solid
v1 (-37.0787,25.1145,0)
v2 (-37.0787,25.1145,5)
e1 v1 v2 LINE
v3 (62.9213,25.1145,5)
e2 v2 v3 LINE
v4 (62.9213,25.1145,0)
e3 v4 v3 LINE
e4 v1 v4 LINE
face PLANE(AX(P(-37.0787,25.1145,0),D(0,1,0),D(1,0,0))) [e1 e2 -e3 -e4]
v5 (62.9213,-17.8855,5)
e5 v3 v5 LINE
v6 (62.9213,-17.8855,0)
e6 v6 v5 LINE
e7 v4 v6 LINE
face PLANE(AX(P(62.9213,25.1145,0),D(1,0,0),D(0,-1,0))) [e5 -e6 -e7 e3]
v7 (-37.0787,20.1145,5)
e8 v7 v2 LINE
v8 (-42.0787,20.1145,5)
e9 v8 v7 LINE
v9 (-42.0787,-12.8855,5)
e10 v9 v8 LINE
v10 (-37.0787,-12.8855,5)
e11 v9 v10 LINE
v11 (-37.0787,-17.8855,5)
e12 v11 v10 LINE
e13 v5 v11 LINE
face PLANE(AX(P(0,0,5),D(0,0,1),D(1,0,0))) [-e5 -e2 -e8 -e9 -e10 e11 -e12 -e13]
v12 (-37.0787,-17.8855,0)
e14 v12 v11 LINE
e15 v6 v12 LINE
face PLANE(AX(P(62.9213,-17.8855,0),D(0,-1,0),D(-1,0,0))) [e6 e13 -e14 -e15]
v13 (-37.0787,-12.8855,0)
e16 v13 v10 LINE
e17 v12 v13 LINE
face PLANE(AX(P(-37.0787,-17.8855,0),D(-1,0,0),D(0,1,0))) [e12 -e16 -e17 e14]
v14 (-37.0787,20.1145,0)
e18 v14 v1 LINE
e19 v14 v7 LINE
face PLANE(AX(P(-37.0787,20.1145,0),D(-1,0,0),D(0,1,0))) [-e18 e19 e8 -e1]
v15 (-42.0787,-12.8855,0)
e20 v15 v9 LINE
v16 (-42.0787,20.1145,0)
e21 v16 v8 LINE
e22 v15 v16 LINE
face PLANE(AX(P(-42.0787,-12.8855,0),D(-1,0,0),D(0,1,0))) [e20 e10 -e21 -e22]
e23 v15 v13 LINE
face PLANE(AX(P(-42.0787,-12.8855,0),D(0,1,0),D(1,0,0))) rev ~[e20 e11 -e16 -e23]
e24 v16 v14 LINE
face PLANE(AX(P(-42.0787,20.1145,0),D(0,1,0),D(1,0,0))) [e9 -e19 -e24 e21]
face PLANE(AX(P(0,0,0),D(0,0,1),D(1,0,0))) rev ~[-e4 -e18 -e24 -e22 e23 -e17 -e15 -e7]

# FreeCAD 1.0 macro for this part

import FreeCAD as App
import Part
import Sketcher

V = App.Vector
Q = App.Units.Quantity


def add_polygon(sketch, points):
    """Adds a closed chain of lines whose ends are joined by coincident constraints."""
    first, n = sketch.GeometryCount, len(points)
    for a, b in zip(points, points[1:] + points[:1]):
        sketch.addGeometry(Part.LineSegment(App.Vector(*a, 0), App.Vector(*b, 0)), False)
    for i in range(n):
        sketch.addConstraint(Sketcher.Constraint("Coincident", first + i, 2, first + (i + 1) % n, 1))

doc = App.newDocument("Part")
body = doc.addObject("PartDesign::Body", "Body")

# Sketch on XY plane
sketch1 = body.newObject("Sketcher::SketchObject", "Sketch")
sketch1.AttachmentSupport = (doc.getObject("XY_Plane"), [""])
sketch1.MapMode = "FlatFace"
add_polygon(sketch1, [(-42, 20), (-42, -13), (-37, -13), (-37, -18), (63, -18), (63, 25), (-37, 25), (-37, 20)])  # lines 0-7
sketch1.addConstraint(Sketcher.Constraint("Vertical", 0))
sketch1.addConstraint(Sketcher.Constraint("Horizontal", 1))
sketch1.addConstraint(Sketcher.Constraint("Vertical", 2))
sketch1.addConstraint(Sketcher.Constraint("Horizontal", 3))
sketch1.addConstraint(Sketcher.Constraint("Vertical", 4))
sketch1.addConstraint(Sketcher.Constraint("Horizontal", 5))
sketch1.addConstraint(Sketcher.Constraint("Vertical", 6))
sketch1.addConstraint(Sketcher.Constraint("Horizontal", 7))
sketch1.addConstraint(Sketcher.Constraint("Vertical", 2, 2, 5, 2))
sketch1.addConstraint(Sketcher.Constraint("Equal", 7, 2))
sketch1.addConstraint(Sketcher.Constraint("Equal", 2, 6))
sketch1.addConstraint(Sketcher.Constraint("DistanceX", 1, 1, 1, 2, Q("5 mm")))
sketch1.addConstraint(Sketcher.Constraint("DistanceX", 3, 1, 3, 2, Q("100 mm")))
sketch1.addConstraint(Sketcher.Constraint("DistanceY", 0, 2, 0, 1, Q("33 mm")))
sketch1.addConstraint(Sketcher.Constraint("DistanceX", 0, 2, -1, 1, Q("42.0787 mm")))
sketch1.addConstraint(Sketcher.Constraint("DistanceY", 0, 2, -1, 1, Q("12.8855 mm")))
pad1 = body.newObject("PartDesign::Pad", "Pad")
pad1.Profile = sketch1
pad1.Length = 5

doc.recompute()
